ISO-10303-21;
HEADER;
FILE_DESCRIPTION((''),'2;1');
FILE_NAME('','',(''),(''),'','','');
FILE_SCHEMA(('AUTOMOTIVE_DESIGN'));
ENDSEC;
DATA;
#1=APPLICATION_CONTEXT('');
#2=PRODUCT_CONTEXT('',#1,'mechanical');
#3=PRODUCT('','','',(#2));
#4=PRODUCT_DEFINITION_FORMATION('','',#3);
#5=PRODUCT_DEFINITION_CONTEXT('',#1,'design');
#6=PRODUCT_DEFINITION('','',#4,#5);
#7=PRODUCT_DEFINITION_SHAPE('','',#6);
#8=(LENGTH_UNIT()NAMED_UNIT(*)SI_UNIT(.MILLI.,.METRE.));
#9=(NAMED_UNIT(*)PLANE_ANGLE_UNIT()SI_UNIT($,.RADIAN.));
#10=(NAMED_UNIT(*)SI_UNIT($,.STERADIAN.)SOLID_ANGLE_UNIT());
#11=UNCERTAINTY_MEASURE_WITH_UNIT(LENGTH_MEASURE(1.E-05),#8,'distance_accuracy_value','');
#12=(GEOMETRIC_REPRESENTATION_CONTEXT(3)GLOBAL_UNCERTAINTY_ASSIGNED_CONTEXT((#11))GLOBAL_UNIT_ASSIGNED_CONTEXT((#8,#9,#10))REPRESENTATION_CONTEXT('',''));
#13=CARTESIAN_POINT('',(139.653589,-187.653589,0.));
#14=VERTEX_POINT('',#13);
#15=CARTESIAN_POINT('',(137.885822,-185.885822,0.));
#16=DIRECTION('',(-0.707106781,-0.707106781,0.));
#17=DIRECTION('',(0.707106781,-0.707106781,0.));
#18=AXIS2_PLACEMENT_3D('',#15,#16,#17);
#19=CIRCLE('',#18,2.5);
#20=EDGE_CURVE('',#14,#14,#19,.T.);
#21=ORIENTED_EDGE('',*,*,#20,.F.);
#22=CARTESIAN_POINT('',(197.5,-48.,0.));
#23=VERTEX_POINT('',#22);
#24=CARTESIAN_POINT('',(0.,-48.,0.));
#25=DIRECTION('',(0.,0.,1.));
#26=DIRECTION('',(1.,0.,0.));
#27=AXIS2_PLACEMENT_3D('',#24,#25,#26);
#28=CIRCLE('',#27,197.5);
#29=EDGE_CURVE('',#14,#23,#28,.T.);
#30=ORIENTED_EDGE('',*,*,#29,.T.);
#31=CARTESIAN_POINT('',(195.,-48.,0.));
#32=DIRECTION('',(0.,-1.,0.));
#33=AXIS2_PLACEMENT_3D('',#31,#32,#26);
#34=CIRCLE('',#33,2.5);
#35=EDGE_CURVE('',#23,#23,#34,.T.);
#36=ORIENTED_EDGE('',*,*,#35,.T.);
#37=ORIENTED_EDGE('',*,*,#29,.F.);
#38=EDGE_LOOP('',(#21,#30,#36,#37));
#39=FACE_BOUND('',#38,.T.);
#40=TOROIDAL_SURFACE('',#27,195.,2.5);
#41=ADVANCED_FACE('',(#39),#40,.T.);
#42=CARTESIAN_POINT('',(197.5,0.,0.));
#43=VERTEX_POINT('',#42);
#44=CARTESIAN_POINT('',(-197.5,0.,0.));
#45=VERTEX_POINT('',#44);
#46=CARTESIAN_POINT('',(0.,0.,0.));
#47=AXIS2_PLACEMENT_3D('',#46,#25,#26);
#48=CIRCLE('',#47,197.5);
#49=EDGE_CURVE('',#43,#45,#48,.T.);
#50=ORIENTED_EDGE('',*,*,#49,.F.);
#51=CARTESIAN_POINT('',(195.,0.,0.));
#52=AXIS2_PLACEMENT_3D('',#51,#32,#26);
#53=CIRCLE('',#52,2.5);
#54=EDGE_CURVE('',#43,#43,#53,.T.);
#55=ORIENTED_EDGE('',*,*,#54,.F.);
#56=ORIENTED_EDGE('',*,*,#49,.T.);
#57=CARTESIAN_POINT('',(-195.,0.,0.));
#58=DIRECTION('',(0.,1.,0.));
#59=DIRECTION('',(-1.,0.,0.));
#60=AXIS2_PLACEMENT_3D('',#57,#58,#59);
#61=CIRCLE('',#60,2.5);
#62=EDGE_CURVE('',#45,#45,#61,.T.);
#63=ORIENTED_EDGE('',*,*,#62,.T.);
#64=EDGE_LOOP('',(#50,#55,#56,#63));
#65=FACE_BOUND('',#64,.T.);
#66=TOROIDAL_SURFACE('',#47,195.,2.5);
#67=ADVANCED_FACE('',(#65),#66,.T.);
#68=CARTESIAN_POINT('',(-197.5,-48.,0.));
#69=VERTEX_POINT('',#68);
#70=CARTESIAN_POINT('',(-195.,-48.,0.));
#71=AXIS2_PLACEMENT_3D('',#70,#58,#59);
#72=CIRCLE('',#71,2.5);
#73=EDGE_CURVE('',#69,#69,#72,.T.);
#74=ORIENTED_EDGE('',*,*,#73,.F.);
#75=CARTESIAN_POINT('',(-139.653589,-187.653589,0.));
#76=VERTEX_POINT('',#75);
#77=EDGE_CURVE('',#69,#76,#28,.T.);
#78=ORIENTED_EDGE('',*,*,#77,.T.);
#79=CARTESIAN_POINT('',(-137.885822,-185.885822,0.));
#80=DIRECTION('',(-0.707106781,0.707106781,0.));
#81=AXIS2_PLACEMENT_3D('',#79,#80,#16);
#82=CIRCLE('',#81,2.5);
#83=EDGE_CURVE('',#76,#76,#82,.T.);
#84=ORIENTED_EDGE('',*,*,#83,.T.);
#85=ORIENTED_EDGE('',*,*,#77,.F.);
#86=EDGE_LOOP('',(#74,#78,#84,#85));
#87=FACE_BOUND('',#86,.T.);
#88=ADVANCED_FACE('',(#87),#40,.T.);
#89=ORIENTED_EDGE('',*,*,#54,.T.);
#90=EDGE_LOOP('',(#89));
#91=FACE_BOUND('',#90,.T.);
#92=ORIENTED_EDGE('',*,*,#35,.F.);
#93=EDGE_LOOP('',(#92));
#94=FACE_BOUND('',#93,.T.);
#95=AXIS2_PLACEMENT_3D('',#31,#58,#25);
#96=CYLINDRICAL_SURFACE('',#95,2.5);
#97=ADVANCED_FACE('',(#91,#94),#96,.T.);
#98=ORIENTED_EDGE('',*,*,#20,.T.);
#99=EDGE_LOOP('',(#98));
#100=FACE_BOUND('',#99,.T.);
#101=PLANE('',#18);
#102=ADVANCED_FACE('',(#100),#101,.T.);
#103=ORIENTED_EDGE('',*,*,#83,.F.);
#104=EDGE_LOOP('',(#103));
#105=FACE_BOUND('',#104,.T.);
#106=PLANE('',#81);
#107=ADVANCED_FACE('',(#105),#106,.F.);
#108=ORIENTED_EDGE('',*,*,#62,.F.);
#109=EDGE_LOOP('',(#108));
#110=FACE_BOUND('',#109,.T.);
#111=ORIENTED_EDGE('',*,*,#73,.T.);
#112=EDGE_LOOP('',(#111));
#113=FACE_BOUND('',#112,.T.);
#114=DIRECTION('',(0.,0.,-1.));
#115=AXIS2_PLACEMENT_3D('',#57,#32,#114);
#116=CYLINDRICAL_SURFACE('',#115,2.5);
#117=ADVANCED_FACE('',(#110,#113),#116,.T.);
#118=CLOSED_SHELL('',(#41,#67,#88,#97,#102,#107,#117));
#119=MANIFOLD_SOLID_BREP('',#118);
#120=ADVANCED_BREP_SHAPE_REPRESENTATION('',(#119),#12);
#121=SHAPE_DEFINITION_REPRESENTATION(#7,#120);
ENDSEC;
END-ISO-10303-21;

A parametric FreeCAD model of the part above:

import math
import FreeCAD as App
import Part
import Sketcher
Q = App.Units.Quantity

doc = App.newDocument("Part")
params = doc.addObject("Spreadsheet::Sheet", "Params")
for row, (alias, value) in enumerate([
    ("sketch1_diameter", "5 mm"),
    ("sketch2_radius", "195 mm"),
    ("sketch2_height", "48 mm"),
], start=1):
    params.set(f"A{row}", alias)
    params.set(f"B{row}", "=" + value)
    params.setAlias(f"B{row}", alias)

body = doc.addObject("PartDesign::Body", "Body")

# Sketch on an angled plane
sketch1 = body.newObject("Sketcher::SketchObject", "Sketch")
sketch1.Placement = App.Placement(App.Vector(-137.885822, -185.885822, 0), App.Rotation(App.Vector(0.707106781, 0.707106781, 0), App.Vector(0, 0, -0.999999999), App.Vector(-0.707106781, 0.707106781, 0), "ZXY"))
sketch1.addGeometry(Part.Circle(App.Vector(0, 0, 0), App.Vector(0, 0, 1), 2.5), False)
sketch1.addConstraint([
    Sketcher.Constraint("Coincident", 0, 3, -1, 1),
    Sketcher.Constraint("Diameter", 0, Q("5 mm")),
])
sketch1.setExpression("Constraints[1]", "Params.sketch1_diameter")

# Sketch on XY plane
sketch2 = body.newObject("Sketcher::SketchObject", "Sketch001")
sketch2.AttachmentSupport = (doc.getObject("XY_Plane"), [""])
sketch2.MapMode = "FlatFace"
sketch2.addGeometry([
    Part.ArcOfCircle(Part.Circle(App.Vector(0, -48, 0), App.Vector(0, 0, 1), 195), math.radians(180), math.radians(225)),  # 0
    Part.LineSegment(App.Vector(-195, -48, 0), App.Vector(-195, 0, 0)),  # 1
    Part.ArcOfCircle(Part.Circle(App.Vector(0, 0, 0), App.Vector(0, 0, 1), 195), math.radians(0), math.radians(180)),  # 2
    Part.LineSegment(App.Vector(195, 0, 0), App.Vector(195, -48, 0)),  # 3
    Part.ArcOfCircle(Part.Circle(App.Vector(0, -48, 0), App.Vector(0, 0, 1), 195), math.radians(-45), math.radians(0)),  # 4
], False)
sketch2.addConstraint([
    Sketcher.Constraint("Tangent", 0, 1, 1, 1),
    Sketcher.Constraint("Tangent", 1, 2, 2, 2),
    Sketcher.Constraint("Tangent", 2, 1, 3, 1),
    Sketcher.Constraint("Tangent", 3, 2, 4, 2),
    Sketcher.Constraint("Vertical", 1),
    Sketcher.Constraint("Vertical", 3),
    Sketcher.Constraint("Coincident", 2, 3, -1, 1),
    Sketcher.Constraint("Coincident", 4, 3, 0, 3),
    Sketcher.Constraint("Equal", 0, 2),
    Sketcher.Constraint("Horizontal", 0, 2, 4, 1),
    Sketcher.Constraint("Radius", 0, Q("195 mm")),
    Sketcher.Constraint("DistanceY", 1, 1, 1, 2, Q("48 mm")),
    Sketcher.Constraint("DistanceX", 0, 2, -1, 1, Q("137.885822 mm")),
])
sketch2.setExpression("Constraints[10]", "Params.sketch2_radius")
sketch2.setExpression("Constraints[11]", "Params.sketch2_height")
doc.recompute()

additivepipe = body.newObject("PartDesign::AdditivePipe", "AdditivePipe")
additivepipe.Profile = sketch1
additivepipe.Spine = (sketch2, ["Edge1", "Edge2", "Edge3", "Edge4", "Edge5"])

doc.recompute()
